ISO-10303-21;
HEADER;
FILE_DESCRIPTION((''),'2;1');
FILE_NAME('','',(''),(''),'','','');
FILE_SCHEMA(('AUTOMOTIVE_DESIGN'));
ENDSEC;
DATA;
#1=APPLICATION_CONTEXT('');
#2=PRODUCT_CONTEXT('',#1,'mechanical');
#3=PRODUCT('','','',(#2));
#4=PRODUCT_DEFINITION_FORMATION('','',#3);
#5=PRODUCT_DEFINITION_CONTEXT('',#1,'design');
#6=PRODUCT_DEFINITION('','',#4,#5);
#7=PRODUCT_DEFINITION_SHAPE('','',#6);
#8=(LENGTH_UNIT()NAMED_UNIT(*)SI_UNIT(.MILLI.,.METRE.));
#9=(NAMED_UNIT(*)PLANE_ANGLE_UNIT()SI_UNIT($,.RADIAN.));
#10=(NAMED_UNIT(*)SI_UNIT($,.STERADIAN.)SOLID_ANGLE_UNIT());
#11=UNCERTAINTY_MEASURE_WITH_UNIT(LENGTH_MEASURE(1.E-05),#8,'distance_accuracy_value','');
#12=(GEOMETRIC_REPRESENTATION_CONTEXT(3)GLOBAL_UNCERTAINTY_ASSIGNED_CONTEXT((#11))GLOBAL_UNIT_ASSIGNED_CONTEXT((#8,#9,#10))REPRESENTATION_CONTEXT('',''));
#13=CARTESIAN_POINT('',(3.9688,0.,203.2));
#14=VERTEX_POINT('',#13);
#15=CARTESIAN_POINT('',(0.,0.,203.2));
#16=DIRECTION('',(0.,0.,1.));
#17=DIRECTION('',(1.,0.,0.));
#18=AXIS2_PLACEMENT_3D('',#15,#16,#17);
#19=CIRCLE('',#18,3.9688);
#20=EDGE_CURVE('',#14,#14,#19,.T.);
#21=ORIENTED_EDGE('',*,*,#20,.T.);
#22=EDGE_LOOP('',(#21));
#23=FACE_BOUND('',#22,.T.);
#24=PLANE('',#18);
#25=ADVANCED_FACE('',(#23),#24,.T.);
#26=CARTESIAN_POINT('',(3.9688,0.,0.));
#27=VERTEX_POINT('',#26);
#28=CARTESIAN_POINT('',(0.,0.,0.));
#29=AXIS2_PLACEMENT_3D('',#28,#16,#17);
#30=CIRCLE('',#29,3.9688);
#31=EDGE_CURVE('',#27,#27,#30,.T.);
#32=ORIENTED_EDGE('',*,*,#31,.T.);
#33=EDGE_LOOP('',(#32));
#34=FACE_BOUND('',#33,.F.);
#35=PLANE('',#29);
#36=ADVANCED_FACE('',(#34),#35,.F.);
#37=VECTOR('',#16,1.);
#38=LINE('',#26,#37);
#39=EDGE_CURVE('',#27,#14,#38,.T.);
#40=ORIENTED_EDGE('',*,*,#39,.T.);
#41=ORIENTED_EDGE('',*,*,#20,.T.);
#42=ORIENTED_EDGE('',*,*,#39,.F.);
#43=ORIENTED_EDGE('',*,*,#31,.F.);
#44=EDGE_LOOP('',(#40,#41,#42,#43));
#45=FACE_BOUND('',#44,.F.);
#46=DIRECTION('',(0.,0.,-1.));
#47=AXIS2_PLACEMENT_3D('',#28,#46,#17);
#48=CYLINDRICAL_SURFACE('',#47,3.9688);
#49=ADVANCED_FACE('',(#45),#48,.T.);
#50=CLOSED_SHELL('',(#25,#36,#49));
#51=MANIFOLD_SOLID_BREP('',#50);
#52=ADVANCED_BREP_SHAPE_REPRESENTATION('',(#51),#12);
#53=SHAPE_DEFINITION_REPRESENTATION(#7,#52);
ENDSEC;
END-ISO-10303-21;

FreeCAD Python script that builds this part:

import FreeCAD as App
import Part
import Sketcher
from FreeCAD import Vector
Q = App.Units.Quantity

doc = App.newDocument("Part")
body = doc.addObject("PartDesign::Body", "Body")

sketch1 = body.newObject("Sketcher::SketchObject", "Sketch")
sketch1.AttachmentSupport = (doc.getObject("XY_Plane"), [""])
sketch1.MapMode = "FlatFace"
sketch1.addGeometry(Part.Circle(Vector(0, 0, 0), Vector(0, 0, 1), 4), False)
sketch1.addConstraint(Sketcher.Constraint("Coincident", 0, 3, -1, 1))
sketch1.addConstraint(Sketcher.Constraint("Diameter", 0, Q("0.3125 in")))
pad1 = body.newObject("PartDesign::Pad", "Pad")
pad1.Profile = sketch1
pad1.Length = Q("8 in")

doc.recompute()
